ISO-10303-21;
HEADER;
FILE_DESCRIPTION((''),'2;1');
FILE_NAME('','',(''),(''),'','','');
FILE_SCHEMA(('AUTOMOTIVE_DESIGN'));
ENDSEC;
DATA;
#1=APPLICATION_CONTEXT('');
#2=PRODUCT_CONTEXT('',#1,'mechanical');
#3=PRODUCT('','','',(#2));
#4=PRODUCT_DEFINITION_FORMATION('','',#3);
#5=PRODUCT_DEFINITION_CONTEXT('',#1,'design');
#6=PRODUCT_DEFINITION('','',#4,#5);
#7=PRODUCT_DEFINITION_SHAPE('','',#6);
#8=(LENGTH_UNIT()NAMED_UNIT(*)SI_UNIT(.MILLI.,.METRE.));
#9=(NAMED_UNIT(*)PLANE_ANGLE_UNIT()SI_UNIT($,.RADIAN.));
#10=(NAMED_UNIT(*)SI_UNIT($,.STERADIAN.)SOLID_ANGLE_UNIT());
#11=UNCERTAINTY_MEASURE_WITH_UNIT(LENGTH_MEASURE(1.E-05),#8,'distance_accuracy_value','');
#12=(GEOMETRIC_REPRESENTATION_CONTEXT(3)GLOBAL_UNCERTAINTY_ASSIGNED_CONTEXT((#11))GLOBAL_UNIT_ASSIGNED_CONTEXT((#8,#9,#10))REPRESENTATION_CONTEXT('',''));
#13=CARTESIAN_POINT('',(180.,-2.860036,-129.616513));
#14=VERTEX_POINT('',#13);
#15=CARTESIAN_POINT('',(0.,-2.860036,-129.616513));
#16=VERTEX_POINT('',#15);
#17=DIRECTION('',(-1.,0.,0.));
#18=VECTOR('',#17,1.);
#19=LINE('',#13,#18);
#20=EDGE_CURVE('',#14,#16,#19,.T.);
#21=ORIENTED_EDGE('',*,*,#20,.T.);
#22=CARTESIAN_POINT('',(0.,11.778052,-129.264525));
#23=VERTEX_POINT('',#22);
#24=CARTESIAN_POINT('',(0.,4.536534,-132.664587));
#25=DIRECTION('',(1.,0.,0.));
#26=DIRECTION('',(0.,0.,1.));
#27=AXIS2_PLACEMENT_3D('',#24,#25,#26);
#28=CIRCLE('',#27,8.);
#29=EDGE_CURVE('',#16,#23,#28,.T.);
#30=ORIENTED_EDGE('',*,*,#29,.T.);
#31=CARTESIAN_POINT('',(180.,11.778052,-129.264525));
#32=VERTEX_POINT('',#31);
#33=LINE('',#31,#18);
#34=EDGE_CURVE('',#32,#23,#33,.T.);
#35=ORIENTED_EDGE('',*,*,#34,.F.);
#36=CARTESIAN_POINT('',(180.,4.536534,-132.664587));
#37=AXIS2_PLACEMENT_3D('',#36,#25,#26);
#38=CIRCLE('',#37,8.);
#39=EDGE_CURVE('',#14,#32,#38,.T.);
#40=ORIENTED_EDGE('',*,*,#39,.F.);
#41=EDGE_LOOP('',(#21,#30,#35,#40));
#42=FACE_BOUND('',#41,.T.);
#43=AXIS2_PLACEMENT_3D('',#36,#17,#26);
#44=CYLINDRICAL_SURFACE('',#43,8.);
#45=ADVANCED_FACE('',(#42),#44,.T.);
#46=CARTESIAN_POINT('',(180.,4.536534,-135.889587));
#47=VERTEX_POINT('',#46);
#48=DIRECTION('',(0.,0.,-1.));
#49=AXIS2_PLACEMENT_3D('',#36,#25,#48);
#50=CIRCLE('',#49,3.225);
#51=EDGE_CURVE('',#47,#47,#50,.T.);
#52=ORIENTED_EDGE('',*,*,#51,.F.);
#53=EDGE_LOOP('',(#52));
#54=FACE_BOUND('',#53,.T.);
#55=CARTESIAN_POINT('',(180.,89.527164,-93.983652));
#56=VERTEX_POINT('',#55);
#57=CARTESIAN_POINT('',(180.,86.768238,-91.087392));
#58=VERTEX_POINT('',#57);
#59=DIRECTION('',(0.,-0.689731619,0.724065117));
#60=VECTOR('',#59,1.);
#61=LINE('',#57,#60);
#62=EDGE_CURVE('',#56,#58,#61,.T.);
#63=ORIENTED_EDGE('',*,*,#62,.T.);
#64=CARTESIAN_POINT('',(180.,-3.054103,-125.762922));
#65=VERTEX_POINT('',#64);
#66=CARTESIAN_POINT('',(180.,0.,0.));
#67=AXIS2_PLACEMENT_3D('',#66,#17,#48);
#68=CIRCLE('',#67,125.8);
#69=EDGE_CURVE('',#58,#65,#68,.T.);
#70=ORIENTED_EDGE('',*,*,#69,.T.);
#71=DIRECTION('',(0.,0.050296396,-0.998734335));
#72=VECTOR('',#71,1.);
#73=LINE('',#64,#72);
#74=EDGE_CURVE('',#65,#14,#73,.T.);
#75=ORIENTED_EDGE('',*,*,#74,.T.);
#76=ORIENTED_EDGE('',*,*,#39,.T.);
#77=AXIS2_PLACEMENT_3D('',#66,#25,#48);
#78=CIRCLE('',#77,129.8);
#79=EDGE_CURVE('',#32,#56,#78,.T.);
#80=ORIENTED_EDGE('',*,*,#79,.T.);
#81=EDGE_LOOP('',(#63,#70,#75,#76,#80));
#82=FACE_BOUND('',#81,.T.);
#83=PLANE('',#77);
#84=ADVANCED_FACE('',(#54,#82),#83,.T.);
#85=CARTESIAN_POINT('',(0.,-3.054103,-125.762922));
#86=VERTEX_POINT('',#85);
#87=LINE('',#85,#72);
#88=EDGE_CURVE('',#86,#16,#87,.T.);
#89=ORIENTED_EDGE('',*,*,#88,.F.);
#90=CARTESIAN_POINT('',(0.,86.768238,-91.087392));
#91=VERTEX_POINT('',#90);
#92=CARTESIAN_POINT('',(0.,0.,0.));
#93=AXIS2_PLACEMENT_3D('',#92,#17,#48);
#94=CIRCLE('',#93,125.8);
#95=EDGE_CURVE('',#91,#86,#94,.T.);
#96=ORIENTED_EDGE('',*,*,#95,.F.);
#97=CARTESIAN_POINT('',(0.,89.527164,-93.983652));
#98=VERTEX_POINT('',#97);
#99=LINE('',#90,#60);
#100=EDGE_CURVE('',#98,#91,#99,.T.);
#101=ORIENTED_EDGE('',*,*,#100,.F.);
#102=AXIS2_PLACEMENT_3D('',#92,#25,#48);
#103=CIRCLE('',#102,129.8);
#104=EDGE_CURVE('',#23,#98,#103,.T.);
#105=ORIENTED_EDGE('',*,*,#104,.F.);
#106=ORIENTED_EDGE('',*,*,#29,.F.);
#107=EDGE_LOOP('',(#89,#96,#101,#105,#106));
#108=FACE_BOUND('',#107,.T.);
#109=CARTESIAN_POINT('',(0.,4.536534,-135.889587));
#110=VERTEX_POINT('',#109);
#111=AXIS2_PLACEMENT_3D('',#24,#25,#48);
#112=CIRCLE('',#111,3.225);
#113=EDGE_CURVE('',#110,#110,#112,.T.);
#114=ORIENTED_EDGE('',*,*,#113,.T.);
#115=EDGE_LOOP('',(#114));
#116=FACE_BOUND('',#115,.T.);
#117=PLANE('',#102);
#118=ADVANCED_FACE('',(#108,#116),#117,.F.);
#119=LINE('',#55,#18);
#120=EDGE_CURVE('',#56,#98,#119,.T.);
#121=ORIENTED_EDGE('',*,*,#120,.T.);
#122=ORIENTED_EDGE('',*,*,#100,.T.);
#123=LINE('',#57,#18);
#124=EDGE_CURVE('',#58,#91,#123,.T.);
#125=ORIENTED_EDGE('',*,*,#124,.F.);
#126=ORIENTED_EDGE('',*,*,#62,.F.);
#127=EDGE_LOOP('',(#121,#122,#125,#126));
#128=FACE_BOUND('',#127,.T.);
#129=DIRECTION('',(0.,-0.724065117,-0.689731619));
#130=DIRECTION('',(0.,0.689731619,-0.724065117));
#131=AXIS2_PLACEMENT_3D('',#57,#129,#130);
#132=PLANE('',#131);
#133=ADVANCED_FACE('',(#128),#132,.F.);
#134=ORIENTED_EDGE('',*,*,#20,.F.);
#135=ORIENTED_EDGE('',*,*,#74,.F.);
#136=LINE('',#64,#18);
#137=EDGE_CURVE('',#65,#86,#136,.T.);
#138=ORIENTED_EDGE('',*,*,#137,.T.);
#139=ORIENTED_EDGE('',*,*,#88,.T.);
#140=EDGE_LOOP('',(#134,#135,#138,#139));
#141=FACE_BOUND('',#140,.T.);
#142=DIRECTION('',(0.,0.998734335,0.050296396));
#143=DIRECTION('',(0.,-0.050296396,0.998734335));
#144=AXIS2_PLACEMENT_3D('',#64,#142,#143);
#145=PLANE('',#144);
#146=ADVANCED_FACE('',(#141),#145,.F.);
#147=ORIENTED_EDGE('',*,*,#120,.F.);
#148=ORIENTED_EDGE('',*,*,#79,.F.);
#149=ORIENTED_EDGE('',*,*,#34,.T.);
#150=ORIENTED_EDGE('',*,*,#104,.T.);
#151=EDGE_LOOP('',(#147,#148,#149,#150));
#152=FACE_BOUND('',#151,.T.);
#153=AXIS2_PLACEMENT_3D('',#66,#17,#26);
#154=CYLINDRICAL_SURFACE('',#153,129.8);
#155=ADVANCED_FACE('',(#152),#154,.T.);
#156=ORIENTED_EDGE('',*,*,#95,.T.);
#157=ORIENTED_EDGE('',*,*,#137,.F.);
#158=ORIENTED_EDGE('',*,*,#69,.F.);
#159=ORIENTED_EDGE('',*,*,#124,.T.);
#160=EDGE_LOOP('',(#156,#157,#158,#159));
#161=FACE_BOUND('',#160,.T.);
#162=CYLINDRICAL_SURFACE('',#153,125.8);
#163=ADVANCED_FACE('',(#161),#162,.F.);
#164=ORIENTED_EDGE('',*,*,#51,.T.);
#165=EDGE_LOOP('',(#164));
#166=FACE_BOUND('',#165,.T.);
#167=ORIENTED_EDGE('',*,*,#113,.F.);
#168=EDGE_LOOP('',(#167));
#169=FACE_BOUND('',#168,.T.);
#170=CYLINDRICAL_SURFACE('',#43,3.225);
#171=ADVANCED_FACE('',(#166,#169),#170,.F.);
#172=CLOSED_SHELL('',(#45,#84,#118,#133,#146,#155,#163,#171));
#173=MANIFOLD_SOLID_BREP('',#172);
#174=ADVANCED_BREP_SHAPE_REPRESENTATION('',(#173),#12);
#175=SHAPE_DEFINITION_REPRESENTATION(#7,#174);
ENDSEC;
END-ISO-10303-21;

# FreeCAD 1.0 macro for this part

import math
import FreeCAD as App
import Part
import Sketcher

V = App.Vector
Q = App.Units.Quantity

doc = App.newDocument("Part")
body = doc.addObject("PartDesign::Body", "Body")

sketch1 = body.newObject("Sketcher::SketchObject", "Sketch")
sketch1.AttachmentSupport = (doc.getObject("YZ_Plane"), [""])
sketch1.MapMode = "FlatFace"
sketch1.addGeometry(Part.LineSegment(V(89.5, -94, 0), V(86.8, -91.1, 0)), False)
sketch1.addGeometry(Part.ArcOfCircle(Part.Circle(V(0, 0, 0), V(0, 0, 1), 125.8), math.radians(-91), math.radians(-46)), False)
sketch1.addGeometry(Part.LineSegment(V(-3.1, -125.8, 0), V(-2.9, -129.6, 0)), False)
sketch1.addGeometry(Part.ArcOfCircle(Part.Circle(V(4.5, -132.7, 0), V(0, 0, 1), 8), math.radians(158), math.radians(385)), False)
sketch1.addGeometry(Part.ArcOfCircle(Part.Circle(V(0, 0, 0), V(0, 0, 1), 129.8), math.radians(-85), math.radians(-46)), False)
sketch1.addGeometry(Part.Circle(V(4.5, -132.7, 0), V(0, 0, 1), 3.2), False)
sketch1.addConstraint(Sketcher.Constraint("Coincident", 0, 2, 1, 2))
sketch1.addConstraint(Sketcher.Constraint("Coincident", 1, 1, 2, 1))
sketch1.addConstraint(Sketcher.Constraint("Coincident", 2, 2, 3, 1))
sketch1.addConstraint(Sketcher.Constraint("Coincident", 3, 2, 4, 1))
sketch1.addConstraint(Sketcher.Constraint("Coincident", 4, 2, 0, 1))
sketch1.addConstraint(Sketcher.Constraint("Coincident", 1, 3, -1, 1))
sketch1.addConstraint(Sketcher.Constraint("Coincident", 4, 3, -1, 1))
sketch1.addConstraint(Sketcher.Constraint("Coincident", 5, 3, 3, 3))
sketch1.addConstraint(Sketcher.Constraint("Radius", 3, Q("8 mm")))
sketch1.addConstraint(Sketcher.Constraint("Radius", 1, Q("125.8 mm")))
sketch1.addConstraint(Sketcher.Constraint("Radius", 4, Q("129.8 mm")))
sketch1.addConstraint(Sketcher.Constraint("Diameter", 5, Q("6.45 mm")))
sketch1.addConstraint(Sketcher.Constraint("DistanceY", 0, 2, -1, 1, Q("91.087392 mm")))
sketch1.addConstraint(Sketcher.Constraint("DistanceY", 1, 1, -1, 1, Q("125.762922 mm")))
sketch1.addConstraint(Sketcher.Constraint("DistanceX", -1, 1, 3, 2, Q("11.778052 mm")))
sketch1.addConstraint(Sketcher.Constraint("DistanceY", 2, 2, 1, 1, Q("3.853592 mm")))
sketch1.addConstraint(Sketcher.Constraint("DistanceX", 2, 2, 3, 3, Q("7.39657 mm")))
sketch1.addConstraint(Sketcher.Constraint("DistanceY", 4, 2, 0, 2, Q("2.89626 mm")))
pad1 = body.newObject("PartDesign::Pad", "Pad")
pad1.Profile = sketch1
pad1.Length = 180

doc.recompute()
